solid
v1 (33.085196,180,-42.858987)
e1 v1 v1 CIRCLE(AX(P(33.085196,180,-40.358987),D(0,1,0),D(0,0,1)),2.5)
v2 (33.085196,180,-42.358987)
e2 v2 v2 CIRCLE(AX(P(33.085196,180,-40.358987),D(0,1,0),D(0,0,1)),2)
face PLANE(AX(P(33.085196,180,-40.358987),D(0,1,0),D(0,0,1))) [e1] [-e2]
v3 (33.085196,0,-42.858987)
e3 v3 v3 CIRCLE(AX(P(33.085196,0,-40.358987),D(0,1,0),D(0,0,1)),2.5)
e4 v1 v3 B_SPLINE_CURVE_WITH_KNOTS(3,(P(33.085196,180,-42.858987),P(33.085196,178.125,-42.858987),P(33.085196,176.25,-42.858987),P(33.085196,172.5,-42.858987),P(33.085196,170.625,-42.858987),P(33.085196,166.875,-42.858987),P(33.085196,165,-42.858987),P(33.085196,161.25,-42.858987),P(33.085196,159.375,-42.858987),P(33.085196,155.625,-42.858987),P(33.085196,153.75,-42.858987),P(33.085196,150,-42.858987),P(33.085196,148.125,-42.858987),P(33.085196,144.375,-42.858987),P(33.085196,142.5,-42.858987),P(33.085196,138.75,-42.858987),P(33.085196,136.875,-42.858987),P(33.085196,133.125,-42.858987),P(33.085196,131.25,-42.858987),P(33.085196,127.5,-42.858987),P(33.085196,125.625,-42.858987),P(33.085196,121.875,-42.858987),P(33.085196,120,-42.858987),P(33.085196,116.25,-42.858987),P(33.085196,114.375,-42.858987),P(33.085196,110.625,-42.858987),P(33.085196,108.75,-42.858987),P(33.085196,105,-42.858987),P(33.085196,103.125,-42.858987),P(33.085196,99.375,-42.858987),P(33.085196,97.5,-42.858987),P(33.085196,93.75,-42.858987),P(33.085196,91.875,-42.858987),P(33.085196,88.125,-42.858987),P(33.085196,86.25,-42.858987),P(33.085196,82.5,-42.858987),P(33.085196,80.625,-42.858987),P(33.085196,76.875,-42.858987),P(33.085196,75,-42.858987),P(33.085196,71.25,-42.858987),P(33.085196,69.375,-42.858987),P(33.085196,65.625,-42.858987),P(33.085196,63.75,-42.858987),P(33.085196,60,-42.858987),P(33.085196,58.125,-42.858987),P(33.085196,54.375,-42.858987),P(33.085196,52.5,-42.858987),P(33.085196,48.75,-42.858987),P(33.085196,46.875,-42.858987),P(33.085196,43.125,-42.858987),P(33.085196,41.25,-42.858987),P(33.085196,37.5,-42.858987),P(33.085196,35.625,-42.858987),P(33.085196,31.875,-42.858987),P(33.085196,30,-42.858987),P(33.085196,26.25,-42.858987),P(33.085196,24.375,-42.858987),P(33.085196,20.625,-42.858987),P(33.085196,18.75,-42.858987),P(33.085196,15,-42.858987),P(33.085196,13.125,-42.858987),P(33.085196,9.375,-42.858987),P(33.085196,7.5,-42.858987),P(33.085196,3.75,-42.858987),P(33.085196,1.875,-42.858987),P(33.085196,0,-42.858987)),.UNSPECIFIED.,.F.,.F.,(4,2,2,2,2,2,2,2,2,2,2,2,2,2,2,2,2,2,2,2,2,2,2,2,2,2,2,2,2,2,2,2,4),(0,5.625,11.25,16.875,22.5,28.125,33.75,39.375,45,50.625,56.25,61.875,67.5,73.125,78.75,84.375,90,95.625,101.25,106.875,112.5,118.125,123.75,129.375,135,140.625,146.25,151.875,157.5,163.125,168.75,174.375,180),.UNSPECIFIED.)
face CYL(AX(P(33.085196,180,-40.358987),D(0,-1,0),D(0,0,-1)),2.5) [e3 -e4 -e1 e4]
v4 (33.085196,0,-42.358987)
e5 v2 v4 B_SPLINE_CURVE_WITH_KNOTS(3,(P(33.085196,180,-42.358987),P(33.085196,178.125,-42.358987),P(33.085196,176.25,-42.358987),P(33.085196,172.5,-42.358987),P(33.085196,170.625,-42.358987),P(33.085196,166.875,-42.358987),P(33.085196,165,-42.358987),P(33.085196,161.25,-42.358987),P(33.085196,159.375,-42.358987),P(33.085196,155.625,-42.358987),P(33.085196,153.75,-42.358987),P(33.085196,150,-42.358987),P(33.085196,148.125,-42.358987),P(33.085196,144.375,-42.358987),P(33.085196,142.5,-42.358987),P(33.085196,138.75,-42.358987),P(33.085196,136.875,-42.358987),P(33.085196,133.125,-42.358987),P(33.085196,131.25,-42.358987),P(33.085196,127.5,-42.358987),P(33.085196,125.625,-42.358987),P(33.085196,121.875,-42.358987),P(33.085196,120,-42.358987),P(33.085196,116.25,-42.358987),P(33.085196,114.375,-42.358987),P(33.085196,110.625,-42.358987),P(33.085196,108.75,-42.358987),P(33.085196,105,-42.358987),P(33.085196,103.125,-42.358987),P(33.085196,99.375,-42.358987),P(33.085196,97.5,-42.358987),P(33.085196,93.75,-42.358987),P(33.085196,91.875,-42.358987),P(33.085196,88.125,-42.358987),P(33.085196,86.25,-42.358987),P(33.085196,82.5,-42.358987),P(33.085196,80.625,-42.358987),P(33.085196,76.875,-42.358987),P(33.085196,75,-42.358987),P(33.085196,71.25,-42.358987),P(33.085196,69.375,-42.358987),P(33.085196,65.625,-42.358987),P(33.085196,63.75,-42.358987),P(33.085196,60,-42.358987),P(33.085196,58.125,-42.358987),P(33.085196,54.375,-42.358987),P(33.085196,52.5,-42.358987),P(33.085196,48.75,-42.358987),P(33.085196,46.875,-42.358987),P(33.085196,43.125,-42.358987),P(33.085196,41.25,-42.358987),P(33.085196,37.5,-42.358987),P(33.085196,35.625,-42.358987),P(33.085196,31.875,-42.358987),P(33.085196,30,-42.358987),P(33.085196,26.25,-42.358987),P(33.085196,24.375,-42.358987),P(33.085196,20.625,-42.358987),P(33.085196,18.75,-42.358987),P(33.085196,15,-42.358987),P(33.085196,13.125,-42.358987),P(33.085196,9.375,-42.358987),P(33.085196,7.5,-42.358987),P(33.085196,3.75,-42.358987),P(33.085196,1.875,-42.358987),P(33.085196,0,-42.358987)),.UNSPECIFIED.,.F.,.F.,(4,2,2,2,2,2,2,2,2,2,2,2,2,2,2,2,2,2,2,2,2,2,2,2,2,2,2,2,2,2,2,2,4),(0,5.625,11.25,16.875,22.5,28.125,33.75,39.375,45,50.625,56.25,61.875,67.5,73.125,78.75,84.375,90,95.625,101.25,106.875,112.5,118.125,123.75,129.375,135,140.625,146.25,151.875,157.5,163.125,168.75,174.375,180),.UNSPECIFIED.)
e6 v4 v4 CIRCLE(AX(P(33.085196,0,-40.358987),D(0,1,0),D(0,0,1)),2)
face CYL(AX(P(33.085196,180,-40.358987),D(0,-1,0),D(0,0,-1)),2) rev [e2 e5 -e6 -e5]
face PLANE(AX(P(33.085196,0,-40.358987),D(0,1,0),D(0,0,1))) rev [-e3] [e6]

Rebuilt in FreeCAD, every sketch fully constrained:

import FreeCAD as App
import Part
import Sketcher
from FreeCAD import Vector

doc = App.newDocument("Part")
body = doc.addObject("PartDesign::Body", "Body")

# Sketch on XZ plane
sketch1 = body.newObject("Sketcher::SketchObject", "Sketch")
sketch1.AttachmentSupport = (doc.getObject("XZ_Plane"), [""])
sketch1.MapMode = "FlatFace"
sketch1.addGeometry(Part.Circle(Vector(33.1, -40.4, 0), Vector(0, 0, 1), 2.5), False)
sketch1.addGeometry(Part.Circle(Vector(33.1, -40.4, 0), Vector(0, 0, 1), 2), False)
sketch1.addConstraint(Sketcher.Constraint("Coincident", 1, 3, 0, 3))
sketch1.addConstraint(Sketcher.Constraint("Diameter", 0, 5.0))
sketch1.addConstraint(Sketcher.Constraint("Diameter", 1, 4.0))
sketch1.addConstraint(Sketcher.Constraint("DistanceX", -1, 1, 0, 3, 33.085196))
sketch1.addConstraint(Sketcher.Constraint("DistanceY", 0, 3, -1, 1, 40.358987))
pad1 = body.newObject("PartDesign::Pad", "Pad")
pad1.Profile = sketch1
pad1.Length = 180
pad1.Reversed = True

doc.recompute()
